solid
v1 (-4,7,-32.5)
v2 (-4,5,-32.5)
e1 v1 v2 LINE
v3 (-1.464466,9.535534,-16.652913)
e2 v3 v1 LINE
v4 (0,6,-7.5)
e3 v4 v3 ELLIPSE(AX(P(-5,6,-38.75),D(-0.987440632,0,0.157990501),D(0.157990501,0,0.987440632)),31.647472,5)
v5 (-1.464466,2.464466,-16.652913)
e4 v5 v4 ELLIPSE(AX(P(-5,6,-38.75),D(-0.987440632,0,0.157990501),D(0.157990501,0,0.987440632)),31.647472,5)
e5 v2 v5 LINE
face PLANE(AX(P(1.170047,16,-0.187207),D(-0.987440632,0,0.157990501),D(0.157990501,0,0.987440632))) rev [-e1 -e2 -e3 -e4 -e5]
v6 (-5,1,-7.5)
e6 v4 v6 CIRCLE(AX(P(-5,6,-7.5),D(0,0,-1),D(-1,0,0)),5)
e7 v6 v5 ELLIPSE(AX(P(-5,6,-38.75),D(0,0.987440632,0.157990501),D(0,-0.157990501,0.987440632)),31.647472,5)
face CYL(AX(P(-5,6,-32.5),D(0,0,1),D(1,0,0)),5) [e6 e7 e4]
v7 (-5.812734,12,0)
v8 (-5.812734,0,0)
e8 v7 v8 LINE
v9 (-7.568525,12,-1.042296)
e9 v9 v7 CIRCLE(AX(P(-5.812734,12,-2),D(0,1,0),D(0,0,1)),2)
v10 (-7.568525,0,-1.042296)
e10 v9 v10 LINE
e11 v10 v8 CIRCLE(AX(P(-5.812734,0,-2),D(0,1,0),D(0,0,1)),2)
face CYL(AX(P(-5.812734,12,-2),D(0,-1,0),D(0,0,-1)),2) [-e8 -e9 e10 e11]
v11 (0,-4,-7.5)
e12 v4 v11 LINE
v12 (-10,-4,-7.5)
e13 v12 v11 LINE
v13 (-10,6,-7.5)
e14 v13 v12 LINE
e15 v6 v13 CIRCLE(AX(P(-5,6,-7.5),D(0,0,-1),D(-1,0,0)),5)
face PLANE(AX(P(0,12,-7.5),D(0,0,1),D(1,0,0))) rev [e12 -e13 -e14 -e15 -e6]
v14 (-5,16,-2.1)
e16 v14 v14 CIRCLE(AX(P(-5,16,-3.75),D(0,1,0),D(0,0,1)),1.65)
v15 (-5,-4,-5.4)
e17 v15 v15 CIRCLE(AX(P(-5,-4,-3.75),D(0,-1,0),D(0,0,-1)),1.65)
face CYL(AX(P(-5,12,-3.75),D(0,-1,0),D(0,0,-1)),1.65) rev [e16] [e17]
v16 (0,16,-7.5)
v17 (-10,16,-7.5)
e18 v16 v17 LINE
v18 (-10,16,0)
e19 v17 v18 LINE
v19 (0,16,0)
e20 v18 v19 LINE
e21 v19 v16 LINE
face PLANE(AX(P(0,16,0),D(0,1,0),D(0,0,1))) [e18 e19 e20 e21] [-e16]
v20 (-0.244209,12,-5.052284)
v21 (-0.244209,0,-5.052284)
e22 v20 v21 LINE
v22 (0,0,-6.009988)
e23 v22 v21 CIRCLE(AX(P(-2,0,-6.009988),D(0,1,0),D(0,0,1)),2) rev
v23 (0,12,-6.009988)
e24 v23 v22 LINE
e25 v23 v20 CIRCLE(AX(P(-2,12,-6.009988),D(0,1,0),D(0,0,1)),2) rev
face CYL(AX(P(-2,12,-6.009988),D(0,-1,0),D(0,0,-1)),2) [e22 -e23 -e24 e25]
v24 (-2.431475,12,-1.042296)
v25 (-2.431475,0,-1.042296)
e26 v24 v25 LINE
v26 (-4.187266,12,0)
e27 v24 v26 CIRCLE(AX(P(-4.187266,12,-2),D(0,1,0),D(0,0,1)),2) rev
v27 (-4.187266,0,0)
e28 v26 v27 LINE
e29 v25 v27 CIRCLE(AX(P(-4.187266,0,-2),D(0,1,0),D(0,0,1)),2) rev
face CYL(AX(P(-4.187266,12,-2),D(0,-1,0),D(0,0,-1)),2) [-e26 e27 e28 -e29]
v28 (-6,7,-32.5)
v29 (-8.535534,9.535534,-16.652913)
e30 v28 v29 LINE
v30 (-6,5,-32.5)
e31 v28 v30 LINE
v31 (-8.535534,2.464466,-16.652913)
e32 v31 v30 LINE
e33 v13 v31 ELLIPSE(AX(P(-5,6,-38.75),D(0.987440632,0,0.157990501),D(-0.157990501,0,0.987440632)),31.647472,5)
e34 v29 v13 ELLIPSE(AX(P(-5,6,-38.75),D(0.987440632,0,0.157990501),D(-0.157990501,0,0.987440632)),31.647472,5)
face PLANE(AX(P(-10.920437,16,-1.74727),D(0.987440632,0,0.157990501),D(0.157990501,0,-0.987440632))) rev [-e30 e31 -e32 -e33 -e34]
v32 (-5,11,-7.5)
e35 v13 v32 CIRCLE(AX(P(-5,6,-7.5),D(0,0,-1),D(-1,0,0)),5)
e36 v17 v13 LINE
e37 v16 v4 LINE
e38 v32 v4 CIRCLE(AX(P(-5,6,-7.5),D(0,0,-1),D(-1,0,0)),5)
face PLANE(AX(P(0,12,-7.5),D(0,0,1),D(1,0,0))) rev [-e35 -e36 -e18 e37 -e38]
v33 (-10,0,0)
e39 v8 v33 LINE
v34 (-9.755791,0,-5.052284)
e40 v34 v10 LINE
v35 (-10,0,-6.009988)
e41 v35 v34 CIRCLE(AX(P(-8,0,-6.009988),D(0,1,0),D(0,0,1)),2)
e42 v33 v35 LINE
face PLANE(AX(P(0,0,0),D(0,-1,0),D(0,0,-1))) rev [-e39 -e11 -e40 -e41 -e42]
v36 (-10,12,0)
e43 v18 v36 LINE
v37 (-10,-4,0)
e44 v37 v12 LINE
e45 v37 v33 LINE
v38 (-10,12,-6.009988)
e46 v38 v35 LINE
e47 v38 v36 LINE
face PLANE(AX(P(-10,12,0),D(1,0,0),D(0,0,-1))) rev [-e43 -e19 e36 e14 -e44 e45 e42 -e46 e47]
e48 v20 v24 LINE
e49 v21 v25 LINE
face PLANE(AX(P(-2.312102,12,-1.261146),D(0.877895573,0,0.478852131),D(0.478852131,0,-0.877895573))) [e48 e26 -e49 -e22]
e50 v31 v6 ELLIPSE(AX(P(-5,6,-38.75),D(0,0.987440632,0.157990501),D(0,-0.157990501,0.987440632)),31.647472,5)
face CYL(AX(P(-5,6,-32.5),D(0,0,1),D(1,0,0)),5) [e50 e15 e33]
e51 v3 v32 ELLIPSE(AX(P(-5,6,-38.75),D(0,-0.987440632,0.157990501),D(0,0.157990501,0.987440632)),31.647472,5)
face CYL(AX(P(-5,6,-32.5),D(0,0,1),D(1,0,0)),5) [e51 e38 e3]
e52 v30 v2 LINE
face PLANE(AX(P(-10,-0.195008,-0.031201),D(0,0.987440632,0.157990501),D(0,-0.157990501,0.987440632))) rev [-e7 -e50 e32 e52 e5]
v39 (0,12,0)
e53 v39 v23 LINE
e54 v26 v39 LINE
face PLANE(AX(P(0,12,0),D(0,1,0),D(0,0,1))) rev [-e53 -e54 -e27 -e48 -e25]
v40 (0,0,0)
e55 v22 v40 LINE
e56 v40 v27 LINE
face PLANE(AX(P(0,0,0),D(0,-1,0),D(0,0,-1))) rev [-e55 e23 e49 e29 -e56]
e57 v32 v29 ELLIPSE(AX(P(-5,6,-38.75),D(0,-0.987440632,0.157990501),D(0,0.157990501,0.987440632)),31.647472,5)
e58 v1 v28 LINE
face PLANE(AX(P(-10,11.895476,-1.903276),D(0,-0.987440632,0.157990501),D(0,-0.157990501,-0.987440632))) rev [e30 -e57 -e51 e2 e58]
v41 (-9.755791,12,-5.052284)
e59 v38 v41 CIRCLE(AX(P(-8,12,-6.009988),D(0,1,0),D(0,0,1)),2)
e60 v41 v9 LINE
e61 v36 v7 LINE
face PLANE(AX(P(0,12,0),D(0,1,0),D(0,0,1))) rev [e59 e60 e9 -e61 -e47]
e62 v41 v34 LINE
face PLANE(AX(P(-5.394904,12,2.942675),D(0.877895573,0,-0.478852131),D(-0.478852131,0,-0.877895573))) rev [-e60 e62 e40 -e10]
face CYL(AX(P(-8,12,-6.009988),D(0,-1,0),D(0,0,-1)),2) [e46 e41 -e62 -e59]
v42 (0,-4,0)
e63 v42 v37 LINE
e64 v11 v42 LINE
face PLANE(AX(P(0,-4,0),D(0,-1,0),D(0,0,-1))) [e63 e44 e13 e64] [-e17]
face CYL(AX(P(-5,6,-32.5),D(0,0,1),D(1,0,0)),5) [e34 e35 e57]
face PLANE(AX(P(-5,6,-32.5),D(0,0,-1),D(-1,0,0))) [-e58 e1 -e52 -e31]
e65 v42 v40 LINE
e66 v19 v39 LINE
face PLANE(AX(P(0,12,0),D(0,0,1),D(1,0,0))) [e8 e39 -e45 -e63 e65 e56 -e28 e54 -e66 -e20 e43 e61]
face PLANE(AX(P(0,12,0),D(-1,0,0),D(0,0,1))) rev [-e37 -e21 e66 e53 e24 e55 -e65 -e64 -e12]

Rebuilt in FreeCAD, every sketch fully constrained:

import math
import FreeCAD as App
import Part
import Sketcher

V = App.Vector


def add_polygon(sketch, points):
    """Adds a closed chain of lines whose ends are joined by coincident constraints."""
    first, n = sketch.GeometryCount, len(points)
    for a, b in zip(points, points[1:] + points[:1]):
        sketch.addGeometry(Part.LineSegment(App.Vector(*a, 0), App.Vector(*b, 0)), False)
    for i in range(n):
        sketch.addConstraint(Sketcher.Constraint("Coincident", first + i, 2, first + (i + 1) % n, 1))

doc = App.newDocument("Part")
body = doc.addObject("PartDesign::Body", "Body")

# Sketch on XZ plane
sketch1 = body.newObject("Sketcher::SketchObject", "Sketch")
sketch1.AttachmentSupport = (doc.getObject("XZ_Plane"), [""])
sketch1.MapMode = "FlatFace"
sketch1.addGeometry(Part.LineSegment(V(-10, -7.5, 0), V(-10, -6, 0)), False)
sketch1.addGeometry(Part.ArcOfCircle(Part.Circle(V(-8, -6, 0), V(0, 0, 1), 2), math.radians(151), math.radians(180)), False)
sketch1.addGeometry(Part.LineSegment(V(-9.8, -5.1, 0), V(-7.6, -1, 0)), False)
sketch1.addGeometry(Part.ArcOfCircle(Part.Circle(V(-5.8, -2, 0), V(0, 0, 1), 2), math.radians(90), math.radians(151)), False)
sketch1.addGeometry(Part.LineSegment(V(-5.8, 0, 0), V(-4.2, 0, 0)), False)
sketch1.addGeometry(Part.ArcOfCircle(Part.Circle(V(-4.2, -2, 0), V(0, 0, 1), 2), math.radians(29), math.radians(90)), False)
sketch1.addGeometry(Part.LineSegment(V(-2.4, -1, 0), V(-0.2, -5.1, 0)), False)
sketch1.addGeometry(Part.ArcOfCircle(Part.Circle(V(-2, -6, 0), V(0, 0, 1), 2), math.radians(0), math.radians(29)), False)
sketch1.addGeometry(Part.LineSegment(V(0, -6, 0), V(0, -7.5, 0)), False)
sketch1.addGeometry(Part.LineSegment(V(0, -7.5, 0), V(-10, -7.5, 0)), False)
sketch1.addGeometry(Part.Circle(V(-5, -3.8, 0), V(0, 0, 1), 1.6), False)
sketch1.addConstraint(Sketcher.Constraint("Tangent", 0, 2, 1, 2))
sketch1.addConstraint(Sketcher.Constraint("Tangent", 1, 1, 2, 1))
sketch1.addConstraint(Sketcher.Constraint("Tangent", 2, 2, 3, 2))
sketch1.addConstraint(Sketcher.Constraint("Tangent", 3, 1, 4, 1))
sketch1.addConstraint(Sketcher.Constraint("Tangent", 4, 2, 5, 2))
sketch1.addConstraint(Sketcher.Constraint("Tangent", 5, 1, 6, 1))
sketch1.addConstraint(Sketcher.Constraint("Tangent", 6, 2, 7, 2))
sketch1.addConstraint(Sketcher.Constraint("Tangent", 7, 1, 8, 1))
sketch1.addConstraint(Sketcher.Constraint("Coincident", 8, 2, 9, 1))
sketch1.addConstraint(Sketcher.Constraint("Coincident", 9, 2, 0, 1))
sketch1.addConstraint(Sketcher.Constraint("Vertical", 0))
sketch1.addConstraint(Sketcher.Constraint("Horizontal", 4))
sketch1.addConstraint(Sketcher.Constraint("Vertical", 8))
sketch1.addConstraint(Sketcher.Constraint("Horizontal", 9))
sketch1.addConstraint(Sketcher.Constraint("Equal", 1, 3))
sketch1.addConstraint(Sketcher.Constraint("Equal", 3, 5))
sketch1.addConstraint(Sketcher.Constraint("Equal", 5, 7))
sketch1.addConstraint(Sketcher.Constraint("PointOnObject", 3, 1, -1))
sketch1.addConstraint(Sketcher.Constraint("PointOnObject", 7, 1, -2))
sketch1.addConstraint(Sketcher.Constraint("Horizontal", 1, 3, 7, 3))
sketch1.addConstraint(Sketcher.Constraint("Horizontal", 2, 2, 5, 1))
sketch1.addConstraint(Sketcher.Constraint("Radius", 1, 2.0))
sketch1.addConstraint(Sketcher.Constraint("Diameter", 10, 3.3))
sketch1.addConstraint(Sketcher.Constraint("DistanceX", 9, 2, 9, 1, 10.0))
sketch1.addConstraint(Sketcher.Constraint("DistanceX", 10, 3, -1, 1, 5.0))
sketch1.addConstraint(Sketcher.Constraint("DistanceY", 8, 2, -1, 1, 7.5))
sketch1.addConstraint(Sketcher.Constraint("DistanceY", 10, 3, -1, 1, 3.75))
sketch1.addConstraint(Sketcher.Constraint("DistanceY", 0, 1, 0, 2, 1.490012))
sketch1.addConstraint(Sketcher.Constraint("DistanceX", 4, 1, 4, 2, 1.625468))
pad1 = body.newObject("PartDesign::Pad", "Pad")
pad1.Profile = sketch1
pad1.Length = 12
pad1.Reversed = True

# Sketch on XZ plane
sketch2 = body.newObject("Sketcher::SketchObject", "Sketch001")
sketch2.AttachmentSupport = (doc.getObject("XZ_Plane"), [""])
sketch2.MapMode = "FlatFace"
sketch2.AttachmentOffset = App.Placement(V(0, 0, 4), App.Rotation())
add_polygon(sketch2, [(-10, 0), (-10, -7.5), (0, -7.5), (0, 0)])  # lines 0-3
sketch2.addGeometry(Part.Circle(V(-5, -3.8, 0), V(0, 0, 1), 1.6), False)  # 4
sketch2.addConstraint(Sketcher.Constraint("Vertical", 0))
sketch2.addConstraint(Sketcher.Constraint("Horizontal", 1))
sketch2.addConstraint(Sketcher.Constraint("Vertical", 2))
sketch2.addConstraint(Sketcher.Constraint("Horizontal", 3))
sketch2.addConstraint(Sketcher.Constraint("Coincident", 2, 2, -1, 1))
sketch2.addConstraint(Sketcher.Constraint("Diameter", 4, 3.3))
sketch2.addConstraint(Sketcher.Constraint("DistanceX", 1, 1, 1, 2, 10.0))
sketch2.addConstraint(Sketcher.Constraint("DistanceY", 0, 2, 0, 1, 7.5))
sketch2.addConstraint(Sketcher.Constraint("DistanceX", 4, 3, -1, 1, 5.0))
sketch2.addConstraint(Sketcher.Constraint("DistanceY", 4, 3, -1, 1, 3.75))
pad2 = body.newObject("PartDesign::Pad", "Pad001")
pad2.Profile = sketch2
pad2.Length = 4
pad2.Reversed = True

# Sketch on XZ plane
sketch3 = body.newObject("Sketcher::SketchObject", "Sketch002")
sketch3.AttachmentSupport = (doc.getObject("XZ_Plane"), [""])
sketch3.MapMode = "FlatFace"
sketch3.AttachmentOffset = App.Placement(V(0, 0, -12), App.Rotation())
add_polygon(sketch3, [(-10, -7.5), (-10, 0), (0, 0), (0, -7.5)])  # lines 0-3
sketch3.addGeometry(Part.Circle(V(-5, -3.8, 0), V(0, 0, 1), 1.6), False)  # 4
sketch3.addConstraint(Sketcher.Constraint("Vertical", 0))
sketch3.addConstraint(Sketcher.Constraint("Horizontal", 1))
sketch3.addConstraint(Sketcher.Constraint("Vertical", 2))
sketch3.addConstraint(Sketcher.Constraint("Horizontal", 3))
sketch3.addConstraint(Sketcher.Constraint("Coincident", 1, 2, -1, 1))
sketch3.addConstraint(Sketcher.Constraint("Diameter", 4, 3.3))
sketch3.addConstraint(Sketcher.Constraint("DistanceX", 1, 1, 1, 2, 10.0))
sketch3.addConstraint(Sketcher.Constraint("DistanceY", 0, 1, 0, 2, 7.5))
sketch3.addConstraint(Sketcher.Constraint("DistanceX", 4, 3, -1, 1, 5.0))
sketch3.addConstraint(Sketcher.Constraint("DistanceY", 4, 3, -1, 1, 3.75))
pad3 = body.newObject("PartDesign::Pad", "Pad002")
pad3.Profile = sketch3
pad3.Length = 4
pad3.Reversed = True

# Sketch on XY plane
sketch4 = body.newObject("Sketcher::SketchObject", "Sketch003")
sketch4.AttachmentSupport = (doc.getObject("XY_Plane"), [""])
sketch4.MapMode = "FlatFace"
sketch4.AttachmentOffset = App.Placement(V(0, 0, -7.5), App.Rotation())
sketch4.addGeometry(Part.Circle(V(-5, 6, 0), V(0, 0, 1), 5), False)
sketch4.addConstraint(Sketcher.Constraint("Diameter", 0, 10.0))
sketch4.addConstraint(Sketcher.Constraint("DistanceX", 0, 3, -1, 1, 5.0))
sketch4.addConstraint(Sketcher.Constraint("DistanceY", -1, 1, 0, 3, 6.0))
pad4 = body.newObject("PartDesign::Pad", "Pad003")
pad4.Profile = sketch4
pad4.Length = 25
pad4.Reversed = True

# Sketch on YZ plane
sketch5 = body.newObject("Sketcher::SketchObject", "Sketch004")
sketch5.AttachmentSupport = (doc.getObject("YZ_Plane"), [""])
sketch5.MapMode = "FlatFace"
add_polygon(sketch5, [(11, -32.5), (11, -7.5), (7, -32.5)])  # lines 0-2
add_polygon(sketch5, [(1, -32.5), (5, -32.5), (1, -7.5)])  # lines 3-5
sketch5.addConstraint(Sketcher.Constraint("Vertical", 0))
sketch5.addConstraint(Sketcher.Constraint("Horizontal", 2))
sketch5.addConstraint(Sketcher.Constraint("Horizontal", 3))
sketch5.addConstraint(Sketcher.Constraint("Vertical", 5))
sketch5.addConstraint(Sketcher.Constraint("Horizontal", 2, 2, 3, 2))
sketch5.addConstraint(Sketcher.Constraint("Horizontal", 0, 2, 4, 2))
sketch5.addConstraint(Sketcher.Constraint("Equal", 2, 3))
sketch5.addConstraint(Sketcher.Constraint("DistanceX", 2, 1, 2, 2, 4.0))
sketch5.addConstraint(Sketcher.Constraint("DistanceY", 0, 1, 0, 2, 25.0))
sketch5.addConstraint(Sketcher.Constraint("DistanceX", -1, 1, 0, 2, 11.0))
sketch5.addConstraint(Sketcher.Constraint("DistanceX", -1, 1, 3, 2, 5.0))
sketch5.addConstraint(Sketcher.Constraint("DistanceY", 0, 2, -1, 1, 7.5))
pocket1 = body.newObject("PartDesign::Pocket", "Pocket")
pocket1.Profile = sketch5
pocket1.Type = "ThroughAll"

# Sketch on XZ plane
sketch6 = body.newObject("Sketcher::SketchObject", "Sketch005")
sketch6.AttachmentSupport = (doc.getObject("XZ_Plane"), [""])
sketch6.MapMode = "FlatFace"
sketch6.AttachmentOffset = App.Placement(V(0, 0, 4), App.Rotation())
add_polygon(sketch6, [(0, -7.5), (-4, -32.5), (0, -32.5)])  # lines 0-2
add_polygon(sketch6, [(-10, -32.5), (-6, -32.5), (-10, -7.5)])  # lines 3-5
sketch6.addConstraint(Sketcher.Constraint("Horizontal", 1))
sketch6.addConstraint(Sketcher.Constraint("Vertical", 2))
sketch6.addConstraint(Sketcher.Constraint("Horizontal", 3))
sketch6.addConstraint(Sketcher.Constraint("Vertical", 5))
sketch6.addConstraint(Sketcher.Constraint("PointOnObject", 1, 2, -2))
sketch6.addConstraint(Sketcher.Constraint("Horizontal", 1, 2, 3, 2))
sketch6.addConstraint(Sketcher.Constraint("Horizontal", 2, 2, 4, 2))
sketch6.addConstraint(Sketcher.Constraint("Equal", 1, 3))
sketch6.addConstraint(Sketcher.Constraint("DistanceX", 1, 1, 1, 2, 4.0))
sketch6.addConstraint(Sketcher.Constraint("DistanceY", 2, 1, 2, 2, 25.0))
sketch6.addConstraint(Sketcher.Constraint("DistanceX", 3, 2, -1, 1, 6.0))
sketch6.addConstraint(Sketcher.Constraint("DistanceY", 0, 2, -1, 1, 32.5))
pocket2 = body.newObject("PartDesign::Pocket", "Pocket001")
pocket2.Profile = sketch6
pocket2.Type = "ThroughAll"

doc.recompute()
